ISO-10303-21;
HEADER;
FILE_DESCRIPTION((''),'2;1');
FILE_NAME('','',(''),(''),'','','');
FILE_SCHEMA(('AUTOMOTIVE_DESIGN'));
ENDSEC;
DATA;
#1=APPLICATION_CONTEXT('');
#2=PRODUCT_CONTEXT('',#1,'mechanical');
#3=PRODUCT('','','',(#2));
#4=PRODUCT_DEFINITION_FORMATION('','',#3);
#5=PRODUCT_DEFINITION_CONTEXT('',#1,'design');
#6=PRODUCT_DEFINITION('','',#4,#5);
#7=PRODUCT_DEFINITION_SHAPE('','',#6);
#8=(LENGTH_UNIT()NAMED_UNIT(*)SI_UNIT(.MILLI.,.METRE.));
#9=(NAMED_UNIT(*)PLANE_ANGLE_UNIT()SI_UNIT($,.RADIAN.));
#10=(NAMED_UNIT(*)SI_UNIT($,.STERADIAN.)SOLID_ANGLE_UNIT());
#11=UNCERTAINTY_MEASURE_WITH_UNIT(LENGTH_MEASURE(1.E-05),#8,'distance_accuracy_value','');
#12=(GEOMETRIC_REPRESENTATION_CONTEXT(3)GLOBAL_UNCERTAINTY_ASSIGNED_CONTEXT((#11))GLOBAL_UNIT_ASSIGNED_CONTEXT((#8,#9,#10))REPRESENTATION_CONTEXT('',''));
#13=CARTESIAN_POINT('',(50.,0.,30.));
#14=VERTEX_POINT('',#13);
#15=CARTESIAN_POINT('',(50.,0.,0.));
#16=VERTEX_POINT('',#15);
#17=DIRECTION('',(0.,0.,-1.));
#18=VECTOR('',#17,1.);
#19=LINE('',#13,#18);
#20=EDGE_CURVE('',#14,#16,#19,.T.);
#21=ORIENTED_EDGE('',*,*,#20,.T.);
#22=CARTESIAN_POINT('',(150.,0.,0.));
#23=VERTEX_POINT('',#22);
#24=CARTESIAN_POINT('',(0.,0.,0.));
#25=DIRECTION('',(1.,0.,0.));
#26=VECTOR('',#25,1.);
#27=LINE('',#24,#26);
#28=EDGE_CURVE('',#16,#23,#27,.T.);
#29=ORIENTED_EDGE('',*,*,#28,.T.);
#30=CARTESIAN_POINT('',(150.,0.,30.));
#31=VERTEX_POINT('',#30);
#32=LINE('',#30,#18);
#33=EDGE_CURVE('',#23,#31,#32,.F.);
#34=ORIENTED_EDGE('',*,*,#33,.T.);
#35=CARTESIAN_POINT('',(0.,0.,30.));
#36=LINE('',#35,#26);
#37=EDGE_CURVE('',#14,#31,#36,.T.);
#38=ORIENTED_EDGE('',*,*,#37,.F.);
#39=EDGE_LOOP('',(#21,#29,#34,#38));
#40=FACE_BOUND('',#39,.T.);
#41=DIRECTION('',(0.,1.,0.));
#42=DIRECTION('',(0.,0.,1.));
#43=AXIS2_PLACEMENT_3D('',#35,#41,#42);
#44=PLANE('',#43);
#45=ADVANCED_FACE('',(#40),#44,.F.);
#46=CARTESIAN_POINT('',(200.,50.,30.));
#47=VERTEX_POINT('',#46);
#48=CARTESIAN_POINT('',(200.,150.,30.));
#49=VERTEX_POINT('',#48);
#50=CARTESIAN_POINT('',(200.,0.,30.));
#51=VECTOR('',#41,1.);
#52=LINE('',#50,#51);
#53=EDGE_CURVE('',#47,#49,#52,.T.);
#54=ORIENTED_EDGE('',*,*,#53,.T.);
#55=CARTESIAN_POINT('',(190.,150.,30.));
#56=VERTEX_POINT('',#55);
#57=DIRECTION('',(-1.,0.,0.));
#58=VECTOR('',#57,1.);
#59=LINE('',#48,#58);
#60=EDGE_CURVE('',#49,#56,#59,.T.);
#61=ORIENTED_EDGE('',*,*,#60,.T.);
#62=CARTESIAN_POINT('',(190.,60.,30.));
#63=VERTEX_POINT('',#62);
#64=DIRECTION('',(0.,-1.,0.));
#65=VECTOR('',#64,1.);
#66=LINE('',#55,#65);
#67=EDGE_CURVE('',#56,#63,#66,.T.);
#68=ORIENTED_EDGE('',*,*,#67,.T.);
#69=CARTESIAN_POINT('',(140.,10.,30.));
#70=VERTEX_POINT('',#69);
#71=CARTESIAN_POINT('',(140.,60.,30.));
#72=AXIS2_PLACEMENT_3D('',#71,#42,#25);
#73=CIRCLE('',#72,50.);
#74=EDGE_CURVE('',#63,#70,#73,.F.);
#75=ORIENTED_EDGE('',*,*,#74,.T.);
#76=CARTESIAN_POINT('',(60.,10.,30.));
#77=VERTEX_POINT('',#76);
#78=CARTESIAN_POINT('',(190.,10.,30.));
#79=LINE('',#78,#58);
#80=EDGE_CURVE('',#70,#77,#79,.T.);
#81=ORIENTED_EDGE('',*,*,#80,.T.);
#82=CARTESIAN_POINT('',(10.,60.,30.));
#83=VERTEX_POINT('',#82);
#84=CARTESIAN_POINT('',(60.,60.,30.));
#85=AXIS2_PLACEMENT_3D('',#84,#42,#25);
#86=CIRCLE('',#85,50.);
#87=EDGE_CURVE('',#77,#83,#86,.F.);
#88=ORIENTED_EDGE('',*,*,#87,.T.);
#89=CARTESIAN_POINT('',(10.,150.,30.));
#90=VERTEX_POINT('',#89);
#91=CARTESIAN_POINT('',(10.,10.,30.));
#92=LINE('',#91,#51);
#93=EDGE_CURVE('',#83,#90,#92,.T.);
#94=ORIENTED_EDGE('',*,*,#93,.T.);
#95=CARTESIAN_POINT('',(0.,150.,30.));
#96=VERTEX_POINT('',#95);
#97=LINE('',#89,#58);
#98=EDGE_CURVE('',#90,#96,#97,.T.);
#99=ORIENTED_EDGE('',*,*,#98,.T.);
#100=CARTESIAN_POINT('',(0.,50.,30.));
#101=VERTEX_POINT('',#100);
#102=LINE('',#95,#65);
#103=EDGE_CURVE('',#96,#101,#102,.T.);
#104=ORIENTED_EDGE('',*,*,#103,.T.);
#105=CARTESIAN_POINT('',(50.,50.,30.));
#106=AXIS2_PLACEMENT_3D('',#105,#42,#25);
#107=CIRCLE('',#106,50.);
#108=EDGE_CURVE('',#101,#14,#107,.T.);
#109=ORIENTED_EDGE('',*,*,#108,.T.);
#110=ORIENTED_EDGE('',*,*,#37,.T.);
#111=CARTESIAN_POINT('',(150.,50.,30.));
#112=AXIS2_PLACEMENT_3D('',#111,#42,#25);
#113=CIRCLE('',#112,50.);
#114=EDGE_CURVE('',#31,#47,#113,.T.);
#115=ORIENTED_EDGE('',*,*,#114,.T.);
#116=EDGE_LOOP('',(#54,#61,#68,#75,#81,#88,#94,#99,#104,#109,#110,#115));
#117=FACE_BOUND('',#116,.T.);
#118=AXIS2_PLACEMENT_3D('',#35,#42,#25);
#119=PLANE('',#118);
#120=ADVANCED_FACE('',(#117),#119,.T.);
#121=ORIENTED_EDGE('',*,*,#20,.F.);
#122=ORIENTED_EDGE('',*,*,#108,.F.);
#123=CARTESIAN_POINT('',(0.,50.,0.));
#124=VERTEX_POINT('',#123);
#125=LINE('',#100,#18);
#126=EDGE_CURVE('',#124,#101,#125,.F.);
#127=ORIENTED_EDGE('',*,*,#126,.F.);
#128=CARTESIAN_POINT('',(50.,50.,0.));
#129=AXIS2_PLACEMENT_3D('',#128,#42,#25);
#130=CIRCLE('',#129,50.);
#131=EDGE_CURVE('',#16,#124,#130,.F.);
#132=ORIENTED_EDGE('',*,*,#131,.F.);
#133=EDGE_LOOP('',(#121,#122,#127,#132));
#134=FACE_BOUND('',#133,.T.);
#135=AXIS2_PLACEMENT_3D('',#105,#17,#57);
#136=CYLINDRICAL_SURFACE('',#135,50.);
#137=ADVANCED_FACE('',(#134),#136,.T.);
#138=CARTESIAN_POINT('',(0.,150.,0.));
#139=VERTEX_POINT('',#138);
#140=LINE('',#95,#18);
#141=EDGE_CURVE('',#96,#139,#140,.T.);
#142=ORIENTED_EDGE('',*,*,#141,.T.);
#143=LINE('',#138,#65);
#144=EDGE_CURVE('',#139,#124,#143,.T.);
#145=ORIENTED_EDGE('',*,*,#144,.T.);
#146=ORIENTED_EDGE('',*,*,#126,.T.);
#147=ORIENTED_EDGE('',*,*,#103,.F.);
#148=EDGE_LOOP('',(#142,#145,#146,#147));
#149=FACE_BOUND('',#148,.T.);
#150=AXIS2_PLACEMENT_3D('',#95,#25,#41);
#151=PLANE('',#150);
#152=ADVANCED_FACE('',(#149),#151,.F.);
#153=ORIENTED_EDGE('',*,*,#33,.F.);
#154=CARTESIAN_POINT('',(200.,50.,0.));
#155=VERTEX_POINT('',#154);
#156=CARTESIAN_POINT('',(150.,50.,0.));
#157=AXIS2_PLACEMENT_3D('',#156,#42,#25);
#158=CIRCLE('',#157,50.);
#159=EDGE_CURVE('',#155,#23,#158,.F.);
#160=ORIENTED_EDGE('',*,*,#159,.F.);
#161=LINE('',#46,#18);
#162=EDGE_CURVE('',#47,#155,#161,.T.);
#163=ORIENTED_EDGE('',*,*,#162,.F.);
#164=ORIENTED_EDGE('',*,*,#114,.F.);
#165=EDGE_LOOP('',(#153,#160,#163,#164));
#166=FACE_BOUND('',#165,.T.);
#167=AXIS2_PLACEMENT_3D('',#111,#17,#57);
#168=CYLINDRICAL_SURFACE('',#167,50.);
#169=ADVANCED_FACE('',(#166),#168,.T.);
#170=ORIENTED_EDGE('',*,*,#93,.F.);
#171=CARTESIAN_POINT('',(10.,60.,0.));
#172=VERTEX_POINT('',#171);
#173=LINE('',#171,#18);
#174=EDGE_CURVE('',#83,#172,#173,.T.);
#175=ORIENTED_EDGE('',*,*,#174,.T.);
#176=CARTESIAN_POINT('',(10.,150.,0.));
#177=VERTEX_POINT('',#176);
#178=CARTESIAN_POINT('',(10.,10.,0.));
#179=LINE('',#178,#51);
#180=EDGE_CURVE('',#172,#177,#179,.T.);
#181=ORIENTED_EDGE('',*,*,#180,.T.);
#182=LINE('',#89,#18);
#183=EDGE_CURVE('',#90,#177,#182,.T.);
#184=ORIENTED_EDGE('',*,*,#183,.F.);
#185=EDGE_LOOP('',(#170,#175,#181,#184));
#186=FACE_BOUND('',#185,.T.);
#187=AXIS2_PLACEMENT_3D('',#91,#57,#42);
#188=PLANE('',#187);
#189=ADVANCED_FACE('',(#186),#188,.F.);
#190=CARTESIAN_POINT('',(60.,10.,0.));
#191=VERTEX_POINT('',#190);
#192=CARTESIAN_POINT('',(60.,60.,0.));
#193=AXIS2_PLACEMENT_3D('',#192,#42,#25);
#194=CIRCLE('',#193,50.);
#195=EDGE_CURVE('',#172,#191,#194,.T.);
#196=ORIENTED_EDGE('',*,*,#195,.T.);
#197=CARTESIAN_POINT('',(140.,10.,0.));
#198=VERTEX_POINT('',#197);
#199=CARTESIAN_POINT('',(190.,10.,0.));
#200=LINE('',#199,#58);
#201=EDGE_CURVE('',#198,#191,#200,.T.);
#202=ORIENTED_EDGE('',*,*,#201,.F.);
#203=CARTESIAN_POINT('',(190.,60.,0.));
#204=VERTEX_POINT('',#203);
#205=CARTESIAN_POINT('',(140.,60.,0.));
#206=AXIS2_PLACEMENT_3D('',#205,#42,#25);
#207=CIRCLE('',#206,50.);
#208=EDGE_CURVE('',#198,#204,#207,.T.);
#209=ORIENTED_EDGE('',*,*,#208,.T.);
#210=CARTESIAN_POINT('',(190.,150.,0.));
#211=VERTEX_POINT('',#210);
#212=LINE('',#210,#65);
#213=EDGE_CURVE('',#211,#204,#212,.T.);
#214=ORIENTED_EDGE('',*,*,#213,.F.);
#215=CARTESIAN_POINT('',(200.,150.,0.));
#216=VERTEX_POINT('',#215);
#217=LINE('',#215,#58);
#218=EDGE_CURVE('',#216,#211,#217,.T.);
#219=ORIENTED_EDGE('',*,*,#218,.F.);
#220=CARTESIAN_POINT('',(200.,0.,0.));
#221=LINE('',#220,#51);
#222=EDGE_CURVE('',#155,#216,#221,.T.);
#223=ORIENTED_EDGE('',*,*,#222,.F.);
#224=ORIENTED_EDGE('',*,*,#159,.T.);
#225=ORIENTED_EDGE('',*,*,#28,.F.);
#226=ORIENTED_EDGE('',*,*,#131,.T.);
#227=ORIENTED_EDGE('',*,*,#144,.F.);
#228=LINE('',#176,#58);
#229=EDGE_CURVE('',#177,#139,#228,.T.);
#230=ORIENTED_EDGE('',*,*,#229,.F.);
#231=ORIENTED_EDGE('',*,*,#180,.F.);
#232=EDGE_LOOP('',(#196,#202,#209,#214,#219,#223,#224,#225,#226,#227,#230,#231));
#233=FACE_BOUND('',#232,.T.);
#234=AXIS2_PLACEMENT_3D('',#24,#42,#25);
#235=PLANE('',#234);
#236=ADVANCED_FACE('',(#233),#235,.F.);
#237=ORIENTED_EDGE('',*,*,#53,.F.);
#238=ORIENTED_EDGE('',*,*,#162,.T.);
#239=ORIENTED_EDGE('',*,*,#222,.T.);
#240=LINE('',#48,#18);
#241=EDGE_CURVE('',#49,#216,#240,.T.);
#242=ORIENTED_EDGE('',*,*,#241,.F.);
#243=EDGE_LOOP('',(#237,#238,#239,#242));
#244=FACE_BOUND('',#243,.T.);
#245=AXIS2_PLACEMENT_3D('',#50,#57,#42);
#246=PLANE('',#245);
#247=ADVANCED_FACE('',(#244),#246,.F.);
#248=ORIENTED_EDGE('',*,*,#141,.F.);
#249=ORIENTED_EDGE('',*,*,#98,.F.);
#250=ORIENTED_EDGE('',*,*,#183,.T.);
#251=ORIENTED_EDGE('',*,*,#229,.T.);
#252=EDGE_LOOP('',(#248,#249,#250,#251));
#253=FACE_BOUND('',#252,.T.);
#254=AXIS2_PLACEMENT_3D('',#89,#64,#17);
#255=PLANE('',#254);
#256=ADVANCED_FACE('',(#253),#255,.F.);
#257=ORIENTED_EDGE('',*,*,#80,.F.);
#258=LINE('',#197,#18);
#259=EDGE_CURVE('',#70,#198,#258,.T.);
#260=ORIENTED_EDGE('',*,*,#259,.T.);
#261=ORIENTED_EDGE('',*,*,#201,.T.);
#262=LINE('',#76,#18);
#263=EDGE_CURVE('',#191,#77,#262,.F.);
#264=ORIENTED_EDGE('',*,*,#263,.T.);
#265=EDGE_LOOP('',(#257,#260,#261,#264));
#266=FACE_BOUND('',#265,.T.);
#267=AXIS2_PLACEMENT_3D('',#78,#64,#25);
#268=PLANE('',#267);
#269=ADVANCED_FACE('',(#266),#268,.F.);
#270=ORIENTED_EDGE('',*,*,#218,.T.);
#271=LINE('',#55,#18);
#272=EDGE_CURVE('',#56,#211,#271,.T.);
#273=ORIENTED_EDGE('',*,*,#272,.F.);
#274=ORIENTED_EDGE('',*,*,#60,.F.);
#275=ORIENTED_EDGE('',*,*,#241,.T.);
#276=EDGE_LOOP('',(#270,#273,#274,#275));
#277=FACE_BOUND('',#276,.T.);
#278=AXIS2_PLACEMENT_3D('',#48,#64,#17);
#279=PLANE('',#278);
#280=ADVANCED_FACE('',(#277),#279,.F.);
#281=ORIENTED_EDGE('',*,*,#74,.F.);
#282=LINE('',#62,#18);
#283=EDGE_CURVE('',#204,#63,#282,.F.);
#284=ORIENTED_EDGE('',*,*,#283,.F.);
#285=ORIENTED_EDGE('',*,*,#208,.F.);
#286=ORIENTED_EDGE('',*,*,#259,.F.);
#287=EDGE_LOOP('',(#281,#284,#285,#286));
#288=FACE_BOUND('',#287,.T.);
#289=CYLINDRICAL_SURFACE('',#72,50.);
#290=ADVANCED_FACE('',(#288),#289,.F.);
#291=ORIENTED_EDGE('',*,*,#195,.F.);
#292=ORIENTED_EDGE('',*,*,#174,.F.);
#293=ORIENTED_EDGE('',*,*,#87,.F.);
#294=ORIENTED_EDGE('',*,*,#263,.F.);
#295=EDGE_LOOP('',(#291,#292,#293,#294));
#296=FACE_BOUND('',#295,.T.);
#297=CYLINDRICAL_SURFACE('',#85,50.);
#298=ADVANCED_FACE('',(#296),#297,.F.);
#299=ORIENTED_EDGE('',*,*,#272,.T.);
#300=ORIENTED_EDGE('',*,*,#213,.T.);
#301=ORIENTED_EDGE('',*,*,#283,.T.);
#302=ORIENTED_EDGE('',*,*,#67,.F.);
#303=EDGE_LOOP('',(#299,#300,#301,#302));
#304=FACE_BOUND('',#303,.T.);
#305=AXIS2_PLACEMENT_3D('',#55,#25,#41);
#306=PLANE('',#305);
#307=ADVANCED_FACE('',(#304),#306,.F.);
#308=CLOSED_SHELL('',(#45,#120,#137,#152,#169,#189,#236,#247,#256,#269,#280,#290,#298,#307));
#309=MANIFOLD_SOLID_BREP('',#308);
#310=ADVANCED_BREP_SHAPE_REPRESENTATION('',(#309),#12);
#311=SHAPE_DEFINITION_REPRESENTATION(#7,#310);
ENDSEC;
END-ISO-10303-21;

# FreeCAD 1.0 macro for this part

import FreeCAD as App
import Part
import Sketcher
Q = App.Units.Quantity


def edges_at(feature, points):
    """Names of the edges that pass closest to the given points."""
    edges = feature.Shape.Edges
    near = lambda p: min(range(len(edges)), key=lambda i: edges[i].distToShape(Part.Vertex(*p))[0])
    return sorted({f"Edge{near(p) + 1}" for p in points})


def add_polygon(sketch, points):
    """Adds a closed chain of lines whose ends are joined by coincident constraints."""
    first, n = sketch.GeometryCount, len(points)
    for a, b in zip(points, points[1:] + points[:1]):
        sketch.addGeometry(Part.LineSegment(App.Vector(*a, 0), App.Vector(*b, 0)), False)
    for i in range(n):
        sketch.addConstraint(Sketcher.Constraint("Coincident", first + i, 2, first + (i + 1) % n, 1))

doc = App.newDocument("Part")
params = doc.addObject("Spreadsheet::Sheet", "Params")
for row, (alias, value) in enumerate([
    ("sketch1_width", "200 mm"),
    ("sketch1_width2", "10 mm"),
    ("sketch1_height", "150 mm"),
    ("sketch1_height2", "140 mm"),
    ("pad1_length", "30 mm"),
    ("fillet_radius", "50 mm"),
    ("fillet2_radius", "50 mm"),
], start=1):
    params.set(f"A{row}", alias)
    params.set(f"B{row}", "=" + value)
    params.setAlias(f"B{row}", alias)

body = doc.addObject("PartDesign::Body", "Body")

# Sketch on XY plane
sketch1 = doc.addObject("Sketcher::SketchObject", "Sketch")
body.addObject(sketch1)
sketch1.AttachmentSupport = (doc.XY_Plane, [""])
sketch1.MapMode = "FlatFace"
add_polygon(sketch1, [(0, 0), (200, 0), (200, 150), (190, 150), (190, 10), (10, 10), (10, 150), (0, 150)])  # lines 0-7
sketch1.addConstraint(Sketcher.Constraint("Horizontal", 0))
sketch1.addConstraint(Sketcher.Constraint("Vertical", 1))
sketch1.addConstraint(Sketcher.Constraint("Horizontal", 2))
sketch1.addConstraint(Sketcher.Constraint("Vertical", 3))
sketch1.addConstraint(Sketcher.Constraint("Horizontal", 4))
sketch1.addConstraint(Sketcher.Constraint("Vertical", 5))
sketch1.addConstraint(Sketcher.Constraint("Horizontal", 6))
sketch1.addConstraint(Sketcher.Constraint("Vertical", 7))
sketch1.addConstraint(Sketcher.Constraint("Coincident", 7, 2, -1, 1))
sketch1.addConstraint(Sketcher.Constraint("Horizontal", 2, 2, 5, 2))
sketch1.addConstraint(Sketcher.Constraint("Equal", 2, 6))
sketch1.addConstraint(Sketcher.Constraint("DistanceX", 0, 1, 0, 2, Q("200 mm")))
sketch1.addConstraint(Sketcher.Constraint("DistanceX", 2, 2, 2, 1, Q("10 mm")))
sketch1.addConstraint(Sketcher.Constraint("DistanceY", 1, 1, 1, 2, Q("150 mm")))
sketch1.addConstraint(Sketcher.Constraint("DistanceY", 3, 2, 3, 1, Q("140 mm")))
sketch1.setExpression("Constraints[19]", "Params.sketch1_width")
sketch1.setExpression("Constraints[20]", "Params.sketch1_width2")
sketch1.setExpression("Constraints[21]", "Params.sketch1_height")
sketch1.setExpression("Constraints[22]", "Params.sketch1_height2")
pad1 = doc.addObject("PartDesign::Pad", "Pad")
body.addObject(pad1)
pad1.Profile = sketch1
pad1.setExpression("Length", "Params.pad1_length")
doc.recompute()

fillet = doc.addObject("PartDesign::Fillet", "Fillet")
body.addObject(fillet)
fillet.Base = (pad1, edges_at(pad1, [(10, 10, 15), (190, 10, 15)]))
fillet.setExpression("Radius", "Params.fillet_radius")
doc.recompute()

fillet2 = doc.addObject("PartDesign::Fillet", "Fillet001")
body.addObject(fillet2)
fillet2.Base = (fillet, edges_at(fillet, [(200, 0, 15), (0, 0, 15)]))
fillet2.setExpression("Radius", "Params.fillet2_radius")

doc.recompute()
